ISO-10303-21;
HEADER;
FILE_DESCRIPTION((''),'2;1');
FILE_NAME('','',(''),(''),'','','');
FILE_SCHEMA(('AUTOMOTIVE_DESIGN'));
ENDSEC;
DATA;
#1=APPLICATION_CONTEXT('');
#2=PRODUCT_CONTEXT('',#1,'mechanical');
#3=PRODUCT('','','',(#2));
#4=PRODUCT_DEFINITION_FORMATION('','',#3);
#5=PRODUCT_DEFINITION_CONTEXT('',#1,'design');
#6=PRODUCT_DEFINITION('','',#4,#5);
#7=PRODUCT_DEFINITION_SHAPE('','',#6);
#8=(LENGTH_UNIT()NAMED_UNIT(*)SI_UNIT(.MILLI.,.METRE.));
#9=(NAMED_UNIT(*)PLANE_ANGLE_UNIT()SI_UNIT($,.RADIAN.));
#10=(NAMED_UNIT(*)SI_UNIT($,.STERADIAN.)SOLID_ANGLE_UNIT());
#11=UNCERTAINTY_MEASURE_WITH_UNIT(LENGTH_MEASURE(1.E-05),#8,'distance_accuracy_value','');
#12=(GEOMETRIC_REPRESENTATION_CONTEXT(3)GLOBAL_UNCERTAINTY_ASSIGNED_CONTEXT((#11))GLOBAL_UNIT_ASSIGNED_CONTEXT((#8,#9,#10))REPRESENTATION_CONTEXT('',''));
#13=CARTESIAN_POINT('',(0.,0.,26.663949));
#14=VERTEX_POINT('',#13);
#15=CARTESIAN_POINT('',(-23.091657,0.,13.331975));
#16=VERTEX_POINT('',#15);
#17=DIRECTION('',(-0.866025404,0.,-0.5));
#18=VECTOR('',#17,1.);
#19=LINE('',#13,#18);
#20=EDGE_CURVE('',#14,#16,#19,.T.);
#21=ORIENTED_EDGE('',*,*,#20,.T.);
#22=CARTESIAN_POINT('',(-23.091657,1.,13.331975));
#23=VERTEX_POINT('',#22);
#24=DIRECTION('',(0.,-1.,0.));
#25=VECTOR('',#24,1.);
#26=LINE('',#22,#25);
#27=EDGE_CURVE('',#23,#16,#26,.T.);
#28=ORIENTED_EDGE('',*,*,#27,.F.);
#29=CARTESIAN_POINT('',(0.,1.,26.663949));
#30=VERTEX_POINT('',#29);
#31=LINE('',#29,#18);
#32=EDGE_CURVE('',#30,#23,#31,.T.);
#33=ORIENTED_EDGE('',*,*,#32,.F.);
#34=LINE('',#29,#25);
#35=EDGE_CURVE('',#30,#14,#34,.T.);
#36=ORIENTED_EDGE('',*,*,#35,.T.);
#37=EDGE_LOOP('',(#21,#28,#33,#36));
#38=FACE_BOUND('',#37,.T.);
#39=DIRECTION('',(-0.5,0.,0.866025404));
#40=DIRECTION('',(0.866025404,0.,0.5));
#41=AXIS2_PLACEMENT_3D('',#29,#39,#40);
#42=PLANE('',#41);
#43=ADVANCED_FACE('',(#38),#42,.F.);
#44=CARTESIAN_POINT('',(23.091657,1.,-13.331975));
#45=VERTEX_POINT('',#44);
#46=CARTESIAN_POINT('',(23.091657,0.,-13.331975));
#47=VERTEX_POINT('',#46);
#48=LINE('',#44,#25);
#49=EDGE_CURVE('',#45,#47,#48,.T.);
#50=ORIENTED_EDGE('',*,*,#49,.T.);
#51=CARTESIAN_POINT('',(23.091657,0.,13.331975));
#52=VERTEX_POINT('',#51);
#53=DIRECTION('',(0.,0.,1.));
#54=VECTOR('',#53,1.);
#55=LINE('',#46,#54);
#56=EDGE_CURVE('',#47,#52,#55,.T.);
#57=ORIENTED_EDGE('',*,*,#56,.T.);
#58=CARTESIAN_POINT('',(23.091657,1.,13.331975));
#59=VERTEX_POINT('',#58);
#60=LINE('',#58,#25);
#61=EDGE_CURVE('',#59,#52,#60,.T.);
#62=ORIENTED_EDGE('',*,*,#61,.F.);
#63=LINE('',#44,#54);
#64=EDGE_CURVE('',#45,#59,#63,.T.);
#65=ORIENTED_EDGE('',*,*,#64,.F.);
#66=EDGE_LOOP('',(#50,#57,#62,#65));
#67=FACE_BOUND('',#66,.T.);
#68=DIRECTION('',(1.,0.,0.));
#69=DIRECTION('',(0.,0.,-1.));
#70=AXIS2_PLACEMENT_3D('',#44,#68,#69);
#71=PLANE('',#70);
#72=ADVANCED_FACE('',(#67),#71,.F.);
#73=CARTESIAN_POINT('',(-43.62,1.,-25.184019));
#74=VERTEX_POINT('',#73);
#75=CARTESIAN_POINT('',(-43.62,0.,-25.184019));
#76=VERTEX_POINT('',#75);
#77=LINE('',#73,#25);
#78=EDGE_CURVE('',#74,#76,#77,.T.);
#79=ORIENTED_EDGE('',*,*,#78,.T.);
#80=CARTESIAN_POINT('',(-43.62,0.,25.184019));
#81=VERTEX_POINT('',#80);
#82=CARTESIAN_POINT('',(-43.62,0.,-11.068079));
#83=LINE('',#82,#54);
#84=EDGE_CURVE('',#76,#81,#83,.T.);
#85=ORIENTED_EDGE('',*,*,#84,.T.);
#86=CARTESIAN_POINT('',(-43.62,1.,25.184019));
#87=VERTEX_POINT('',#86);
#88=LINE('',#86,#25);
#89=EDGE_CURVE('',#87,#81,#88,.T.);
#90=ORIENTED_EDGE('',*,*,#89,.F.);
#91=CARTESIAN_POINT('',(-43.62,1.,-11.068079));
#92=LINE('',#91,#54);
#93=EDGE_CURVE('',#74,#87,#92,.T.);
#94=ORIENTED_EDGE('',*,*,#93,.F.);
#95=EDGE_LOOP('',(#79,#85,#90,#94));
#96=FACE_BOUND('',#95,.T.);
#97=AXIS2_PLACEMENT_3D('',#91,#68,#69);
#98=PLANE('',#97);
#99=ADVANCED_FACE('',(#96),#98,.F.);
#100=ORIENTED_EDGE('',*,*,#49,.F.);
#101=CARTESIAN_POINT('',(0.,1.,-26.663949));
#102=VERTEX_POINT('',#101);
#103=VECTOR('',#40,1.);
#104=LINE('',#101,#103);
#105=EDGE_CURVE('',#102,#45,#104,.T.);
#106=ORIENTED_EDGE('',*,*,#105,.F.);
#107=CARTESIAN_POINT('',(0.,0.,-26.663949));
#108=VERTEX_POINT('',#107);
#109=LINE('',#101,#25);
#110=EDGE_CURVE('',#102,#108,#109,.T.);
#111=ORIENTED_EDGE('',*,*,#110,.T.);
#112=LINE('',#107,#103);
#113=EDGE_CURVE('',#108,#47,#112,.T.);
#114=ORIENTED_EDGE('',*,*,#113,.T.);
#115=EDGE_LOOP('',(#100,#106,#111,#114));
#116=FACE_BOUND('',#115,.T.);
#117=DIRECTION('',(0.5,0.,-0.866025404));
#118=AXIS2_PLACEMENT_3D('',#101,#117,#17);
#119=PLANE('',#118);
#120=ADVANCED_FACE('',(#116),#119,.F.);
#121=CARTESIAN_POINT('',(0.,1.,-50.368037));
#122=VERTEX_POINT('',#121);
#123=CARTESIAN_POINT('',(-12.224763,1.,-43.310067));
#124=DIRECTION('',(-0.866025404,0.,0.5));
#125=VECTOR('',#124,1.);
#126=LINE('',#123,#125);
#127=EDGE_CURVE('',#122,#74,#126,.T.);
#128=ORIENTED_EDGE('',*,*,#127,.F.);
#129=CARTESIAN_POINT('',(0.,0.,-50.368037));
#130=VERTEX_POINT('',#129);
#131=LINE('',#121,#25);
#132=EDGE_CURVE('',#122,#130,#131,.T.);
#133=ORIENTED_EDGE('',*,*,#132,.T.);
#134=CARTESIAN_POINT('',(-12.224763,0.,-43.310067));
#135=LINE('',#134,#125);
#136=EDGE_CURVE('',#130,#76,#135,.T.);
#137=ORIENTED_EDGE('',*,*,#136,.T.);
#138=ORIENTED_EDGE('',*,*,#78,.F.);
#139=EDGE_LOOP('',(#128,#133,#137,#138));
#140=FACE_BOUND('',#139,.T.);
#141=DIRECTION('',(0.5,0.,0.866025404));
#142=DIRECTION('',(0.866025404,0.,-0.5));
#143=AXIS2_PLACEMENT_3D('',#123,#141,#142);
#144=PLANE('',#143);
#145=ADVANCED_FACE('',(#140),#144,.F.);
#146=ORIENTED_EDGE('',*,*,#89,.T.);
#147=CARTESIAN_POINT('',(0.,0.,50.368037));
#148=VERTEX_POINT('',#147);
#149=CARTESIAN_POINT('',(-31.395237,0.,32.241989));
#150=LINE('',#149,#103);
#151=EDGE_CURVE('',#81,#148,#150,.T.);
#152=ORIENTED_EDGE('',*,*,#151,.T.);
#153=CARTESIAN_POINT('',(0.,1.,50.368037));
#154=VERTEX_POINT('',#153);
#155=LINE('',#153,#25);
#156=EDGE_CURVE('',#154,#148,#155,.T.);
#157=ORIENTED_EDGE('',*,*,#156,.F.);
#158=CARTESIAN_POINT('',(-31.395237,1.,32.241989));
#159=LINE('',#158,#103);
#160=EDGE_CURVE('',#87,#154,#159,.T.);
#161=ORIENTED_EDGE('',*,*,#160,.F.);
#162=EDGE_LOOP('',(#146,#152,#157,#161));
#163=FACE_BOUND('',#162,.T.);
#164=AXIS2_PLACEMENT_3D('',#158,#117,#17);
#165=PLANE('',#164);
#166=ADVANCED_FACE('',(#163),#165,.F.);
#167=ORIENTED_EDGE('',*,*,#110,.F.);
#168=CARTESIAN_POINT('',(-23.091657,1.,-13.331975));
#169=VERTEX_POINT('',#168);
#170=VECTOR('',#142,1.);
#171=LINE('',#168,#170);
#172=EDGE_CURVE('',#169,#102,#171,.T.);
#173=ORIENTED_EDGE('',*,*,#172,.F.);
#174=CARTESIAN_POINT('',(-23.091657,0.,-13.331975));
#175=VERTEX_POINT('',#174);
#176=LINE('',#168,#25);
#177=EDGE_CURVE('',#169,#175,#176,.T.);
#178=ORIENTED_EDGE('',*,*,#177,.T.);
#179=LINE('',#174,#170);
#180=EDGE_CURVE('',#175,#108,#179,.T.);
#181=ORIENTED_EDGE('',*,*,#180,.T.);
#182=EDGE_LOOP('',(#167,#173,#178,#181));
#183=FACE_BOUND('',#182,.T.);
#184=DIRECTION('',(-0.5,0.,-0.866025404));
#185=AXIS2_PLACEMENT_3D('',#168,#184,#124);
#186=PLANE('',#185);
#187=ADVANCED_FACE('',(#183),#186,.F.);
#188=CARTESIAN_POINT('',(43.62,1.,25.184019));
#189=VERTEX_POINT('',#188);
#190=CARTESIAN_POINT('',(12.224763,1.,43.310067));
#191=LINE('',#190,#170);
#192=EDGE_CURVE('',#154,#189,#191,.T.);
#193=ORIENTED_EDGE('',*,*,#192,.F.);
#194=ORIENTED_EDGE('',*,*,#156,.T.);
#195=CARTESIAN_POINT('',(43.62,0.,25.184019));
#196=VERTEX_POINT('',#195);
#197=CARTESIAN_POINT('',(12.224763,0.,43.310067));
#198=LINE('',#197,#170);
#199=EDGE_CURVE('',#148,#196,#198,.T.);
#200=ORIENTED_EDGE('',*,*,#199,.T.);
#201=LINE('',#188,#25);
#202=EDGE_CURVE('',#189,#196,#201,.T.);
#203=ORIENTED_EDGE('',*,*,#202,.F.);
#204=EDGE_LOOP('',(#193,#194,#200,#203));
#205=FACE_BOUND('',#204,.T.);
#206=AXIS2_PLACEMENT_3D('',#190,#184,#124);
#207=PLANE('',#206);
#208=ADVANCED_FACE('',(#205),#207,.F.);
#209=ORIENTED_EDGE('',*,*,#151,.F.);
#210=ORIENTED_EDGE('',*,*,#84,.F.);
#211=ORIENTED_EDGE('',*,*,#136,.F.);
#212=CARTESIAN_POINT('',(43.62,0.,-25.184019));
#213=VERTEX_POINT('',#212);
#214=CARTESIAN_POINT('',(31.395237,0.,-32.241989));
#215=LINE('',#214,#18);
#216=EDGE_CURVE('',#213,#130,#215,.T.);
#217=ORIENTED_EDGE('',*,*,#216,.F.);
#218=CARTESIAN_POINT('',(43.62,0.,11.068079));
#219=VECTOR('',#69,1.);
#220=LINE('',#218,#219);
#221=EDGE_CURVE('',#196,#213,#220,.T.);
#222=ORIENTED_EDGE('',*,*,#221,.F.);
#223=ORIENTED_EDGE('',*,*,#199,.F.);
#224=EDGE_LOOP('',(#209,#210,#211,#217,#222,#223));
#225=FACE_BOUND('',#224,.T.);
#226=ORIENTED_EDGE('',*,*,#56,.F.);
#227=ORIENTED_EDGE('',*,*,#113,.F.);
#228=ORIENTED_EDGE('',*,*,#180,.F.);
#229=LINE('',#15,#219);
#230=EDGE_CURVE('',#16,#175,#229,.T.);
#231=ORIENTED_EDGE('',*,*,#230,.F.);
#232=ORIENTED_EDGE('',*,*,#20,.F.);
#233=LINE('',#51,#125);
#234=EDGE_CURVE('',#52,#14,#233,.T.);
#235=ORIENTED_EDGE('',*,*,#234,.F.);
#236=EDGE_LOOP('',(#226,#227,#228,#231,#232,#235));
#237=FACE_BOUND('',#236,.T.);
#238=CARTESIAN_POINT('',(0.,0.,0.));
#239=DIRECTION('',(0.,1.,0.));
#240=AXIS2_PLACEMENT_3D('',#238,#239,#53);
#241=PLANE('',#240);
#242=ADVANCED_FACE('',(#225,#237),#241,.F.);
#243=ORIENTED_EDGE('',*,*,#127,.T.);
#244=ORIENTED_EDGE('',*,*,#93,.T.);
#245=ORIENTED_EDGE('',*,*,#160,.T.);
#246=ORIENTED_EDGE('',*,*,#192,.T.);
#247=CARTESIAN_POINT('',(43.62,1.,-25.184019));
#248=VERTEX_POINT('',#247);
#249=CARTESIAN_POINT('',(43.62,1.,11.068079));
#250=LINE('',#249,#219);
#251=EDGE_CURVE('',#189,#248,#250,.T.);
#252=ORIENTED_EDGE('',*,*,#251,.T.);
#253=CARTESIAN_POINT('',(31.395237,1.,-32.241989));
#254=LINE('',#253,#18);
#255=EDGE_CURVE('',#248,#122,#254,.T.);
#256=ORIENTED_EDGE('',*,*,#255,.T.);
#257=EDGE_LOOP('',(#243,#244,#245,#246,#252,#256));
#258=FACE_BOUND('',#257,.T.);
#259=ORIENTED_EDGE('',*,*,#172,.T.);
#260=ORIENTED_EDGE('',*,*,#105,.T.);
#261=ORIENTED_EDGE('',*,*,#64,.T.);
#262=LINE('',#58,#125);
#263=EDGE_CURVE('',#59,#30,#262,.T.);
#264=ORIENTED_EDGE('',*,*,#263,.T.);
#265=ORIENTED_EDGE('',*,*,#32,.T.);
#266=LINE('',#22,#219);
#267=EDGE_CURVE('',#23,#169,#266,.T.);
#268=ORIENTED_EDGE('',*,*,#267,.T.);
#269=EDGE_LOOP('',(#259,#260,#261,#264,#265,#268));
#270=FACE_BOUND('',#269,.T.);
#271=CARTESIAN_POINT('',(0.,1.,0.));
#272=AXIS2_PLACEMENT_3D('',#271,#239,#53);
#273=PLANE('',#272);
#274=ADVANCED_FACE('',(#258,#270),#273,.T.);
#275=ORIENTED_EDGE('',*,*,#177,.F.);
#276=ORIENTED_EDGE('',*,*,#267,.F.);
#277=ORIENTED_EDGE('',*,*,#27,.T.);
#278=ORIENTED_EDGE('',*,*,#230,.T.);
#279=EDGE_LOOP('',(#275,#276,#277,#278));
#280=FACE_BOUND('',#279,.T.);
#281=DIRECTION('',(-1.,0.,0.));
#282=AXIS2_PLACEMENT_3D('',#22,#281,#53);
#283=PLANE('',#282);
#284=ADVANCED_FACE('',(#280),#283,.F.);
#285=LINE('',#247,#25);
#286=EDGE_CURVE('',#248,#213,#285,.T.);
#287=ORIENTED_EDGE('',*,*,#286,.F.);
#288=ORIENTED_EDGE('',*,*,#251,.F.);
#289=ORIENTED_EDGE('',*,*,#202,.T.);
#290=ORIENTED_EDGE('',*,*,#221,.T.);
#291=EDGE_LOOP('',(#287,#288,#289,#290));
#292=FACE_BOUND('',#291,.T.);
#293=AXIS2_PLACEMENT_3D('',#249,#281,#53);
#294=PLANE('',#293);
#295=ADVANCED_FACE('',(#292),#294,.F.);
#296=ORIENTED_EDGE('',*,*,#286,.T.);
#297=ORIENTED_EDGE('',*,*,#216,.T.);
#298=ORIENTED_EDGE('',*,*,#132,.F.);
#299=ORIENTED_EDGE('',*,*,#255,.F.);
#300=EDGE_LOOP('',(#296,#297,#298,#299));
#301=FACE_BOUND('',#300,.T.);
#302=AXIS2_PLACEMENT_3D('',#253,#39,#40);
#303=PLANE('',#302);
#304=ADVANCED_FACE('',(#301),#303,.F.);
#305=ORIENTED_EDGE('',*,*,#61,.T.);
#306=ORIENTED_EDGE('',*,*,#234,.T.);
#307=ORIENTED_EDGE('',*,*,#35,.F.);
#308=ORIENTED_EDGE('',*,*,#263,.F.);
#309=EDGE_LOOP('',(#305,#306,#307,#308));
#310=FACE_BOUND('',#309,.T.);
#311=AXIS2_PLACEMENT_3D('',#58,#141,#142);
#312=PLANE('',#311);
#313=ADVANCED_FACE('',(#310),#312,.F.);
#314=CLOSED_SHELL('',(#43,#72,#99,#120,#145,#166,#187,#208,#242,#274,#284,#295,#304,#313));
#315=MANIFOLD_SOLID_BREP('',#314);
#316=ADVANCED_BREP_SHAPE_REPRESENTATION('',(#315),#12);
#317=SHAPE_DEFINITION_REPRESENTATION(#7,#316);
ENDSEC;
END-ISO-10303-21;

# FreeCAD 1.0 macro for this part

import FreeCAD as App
import Part
import Sketcher
from FreeCAD import Vector
Q = App.Units.Quantity


def add_polygon(sketch, points):
    """Adds a closed chain of lines whose ends are joined by coincident constraints."""
    first, n = sketch.GeometryCount, len(points)
    for a, b in zip(points, points[1:] + points[:1]):
        sketch.addGeometry(Part.LineSegment(App.Vector(*a, 0), App.Vector(*b, 0)), False)
    for i in range(n):
        sketch.addConstraint(Sketcher.Constraint("Coincident", first + i, 2, first + (i + 1) % n, 1))

doc = App.newDocument("Part")
body = doc.addObject("PartDesign::Body", "Body")

# Sketch on XZ plane
sketch1 = body.newObject("Sketcher::SketchObject", "Sketch")
sketch1.AttachmentSupport = (doc.getObject("XZ_Plane"), [""])
sketch1.MapMode = "FlatFace"
add_polygon(sketch1, [(-44, -25), (-44, 25), (-31, 32), (0, 50), (12, 43), (44, 25), (44, -25), (31, -32), (0, -50), (-12, -43)])  # lines 0-9
sketch1.addConstraint([
    Sketcher.Constraint("Vertical", 0),
    Sketcher.Constraint("Vertical", 5),
    Sketcher.Constraint("Symmetric", 0, 2, 5, 2, -1, 1),
    Sketcher.Constraint("Symmetric", 1, 2, 6, 2, -1, 1),
    Sketcher.Constraint("Symmetric", 2, 2, 7, 2, -1, 1),
    Sketcher.Constraint("Symmetric", 3, 2, 8, 2, -1, 1),
    Sketcher.Constraint("PointOnObject", 2, 2, -2),
    Sketcher.Constraint("Parallel", 1, 2),
    Sketcher.Constraint("Parallel", 3, 4),
    Sketcher.Constraint("Parallel", 8, 9),
    Sketcher.Constraint("Horizontal", 0, 2, 4, 2),
    Sketcher.Constraint("Equal", 1, 3),
    Sketcher.Constraint("Angle", 1, Q("30 deg")),
    Sketcher.Constraint("DistanceX", 0, 2, -1, 1, Q("43.62 mm")),
    Sketcher.Constraint("Distance", 1, Q("14.11594 mm")),
    Sketcher.Constraint("DistanceY", 0, 1, 0, 2, Q("50.368037 mm")),
])
pad1 = body.newObject("PartDesign::Pad", "Pad")
pad1.Profile = sketch1
pad1.Length = 1
pad1.Reversed = True

# Sketch on XZ plane
sketch2 = body.newObject("Sketcher::SketchObject", "Sketch001")
sketch2.AttachmentSupport = (doc.getObject("XZ_Plane"), [""])
sketch2.MapMode = "FlatFace"
add_polygon(sketch2, [(23, 13), (0, 27), (-23, 13), (-23, -13), (0, -27), (23, -13)])  # lines 0-5
sketch2.addConstraint([
    Sketcher.Constraint("Vertical", 2),
    Sketcher.Constraint("Vertical", 5),
    Sketcher.Constraint("Symmetric", 0, 2, 3, 2, -1, 1),
    Sketcher.Constraint("Symmetric", 1, 2, 4, 2, -1, 1),
    Sketcher.Constraint("PointOnObject", 0, 2, -2),
    Sketcher.Constraint("Parallel", 0, 3),
    Sketcher.Constraint("Horizontal", 2, 2, 4, 2),
    Sketcher.Constraint("Angle", 0, Q("150 deg")),
    Sketcher.Constraint("DistanceY", 2, 2, 2, 1, Q("26.663949 mm")),
    Sketcher.Constraint("DistanceY", 3, 2, 0, 2, Q("53.327899 mm")),
])
pocket1 = body.newObject("PartDesign::Pocket", "Pocket")
pocket1.Profile = sketch2
pocket1.Type = "ThroughAll"

doc.recompute()
